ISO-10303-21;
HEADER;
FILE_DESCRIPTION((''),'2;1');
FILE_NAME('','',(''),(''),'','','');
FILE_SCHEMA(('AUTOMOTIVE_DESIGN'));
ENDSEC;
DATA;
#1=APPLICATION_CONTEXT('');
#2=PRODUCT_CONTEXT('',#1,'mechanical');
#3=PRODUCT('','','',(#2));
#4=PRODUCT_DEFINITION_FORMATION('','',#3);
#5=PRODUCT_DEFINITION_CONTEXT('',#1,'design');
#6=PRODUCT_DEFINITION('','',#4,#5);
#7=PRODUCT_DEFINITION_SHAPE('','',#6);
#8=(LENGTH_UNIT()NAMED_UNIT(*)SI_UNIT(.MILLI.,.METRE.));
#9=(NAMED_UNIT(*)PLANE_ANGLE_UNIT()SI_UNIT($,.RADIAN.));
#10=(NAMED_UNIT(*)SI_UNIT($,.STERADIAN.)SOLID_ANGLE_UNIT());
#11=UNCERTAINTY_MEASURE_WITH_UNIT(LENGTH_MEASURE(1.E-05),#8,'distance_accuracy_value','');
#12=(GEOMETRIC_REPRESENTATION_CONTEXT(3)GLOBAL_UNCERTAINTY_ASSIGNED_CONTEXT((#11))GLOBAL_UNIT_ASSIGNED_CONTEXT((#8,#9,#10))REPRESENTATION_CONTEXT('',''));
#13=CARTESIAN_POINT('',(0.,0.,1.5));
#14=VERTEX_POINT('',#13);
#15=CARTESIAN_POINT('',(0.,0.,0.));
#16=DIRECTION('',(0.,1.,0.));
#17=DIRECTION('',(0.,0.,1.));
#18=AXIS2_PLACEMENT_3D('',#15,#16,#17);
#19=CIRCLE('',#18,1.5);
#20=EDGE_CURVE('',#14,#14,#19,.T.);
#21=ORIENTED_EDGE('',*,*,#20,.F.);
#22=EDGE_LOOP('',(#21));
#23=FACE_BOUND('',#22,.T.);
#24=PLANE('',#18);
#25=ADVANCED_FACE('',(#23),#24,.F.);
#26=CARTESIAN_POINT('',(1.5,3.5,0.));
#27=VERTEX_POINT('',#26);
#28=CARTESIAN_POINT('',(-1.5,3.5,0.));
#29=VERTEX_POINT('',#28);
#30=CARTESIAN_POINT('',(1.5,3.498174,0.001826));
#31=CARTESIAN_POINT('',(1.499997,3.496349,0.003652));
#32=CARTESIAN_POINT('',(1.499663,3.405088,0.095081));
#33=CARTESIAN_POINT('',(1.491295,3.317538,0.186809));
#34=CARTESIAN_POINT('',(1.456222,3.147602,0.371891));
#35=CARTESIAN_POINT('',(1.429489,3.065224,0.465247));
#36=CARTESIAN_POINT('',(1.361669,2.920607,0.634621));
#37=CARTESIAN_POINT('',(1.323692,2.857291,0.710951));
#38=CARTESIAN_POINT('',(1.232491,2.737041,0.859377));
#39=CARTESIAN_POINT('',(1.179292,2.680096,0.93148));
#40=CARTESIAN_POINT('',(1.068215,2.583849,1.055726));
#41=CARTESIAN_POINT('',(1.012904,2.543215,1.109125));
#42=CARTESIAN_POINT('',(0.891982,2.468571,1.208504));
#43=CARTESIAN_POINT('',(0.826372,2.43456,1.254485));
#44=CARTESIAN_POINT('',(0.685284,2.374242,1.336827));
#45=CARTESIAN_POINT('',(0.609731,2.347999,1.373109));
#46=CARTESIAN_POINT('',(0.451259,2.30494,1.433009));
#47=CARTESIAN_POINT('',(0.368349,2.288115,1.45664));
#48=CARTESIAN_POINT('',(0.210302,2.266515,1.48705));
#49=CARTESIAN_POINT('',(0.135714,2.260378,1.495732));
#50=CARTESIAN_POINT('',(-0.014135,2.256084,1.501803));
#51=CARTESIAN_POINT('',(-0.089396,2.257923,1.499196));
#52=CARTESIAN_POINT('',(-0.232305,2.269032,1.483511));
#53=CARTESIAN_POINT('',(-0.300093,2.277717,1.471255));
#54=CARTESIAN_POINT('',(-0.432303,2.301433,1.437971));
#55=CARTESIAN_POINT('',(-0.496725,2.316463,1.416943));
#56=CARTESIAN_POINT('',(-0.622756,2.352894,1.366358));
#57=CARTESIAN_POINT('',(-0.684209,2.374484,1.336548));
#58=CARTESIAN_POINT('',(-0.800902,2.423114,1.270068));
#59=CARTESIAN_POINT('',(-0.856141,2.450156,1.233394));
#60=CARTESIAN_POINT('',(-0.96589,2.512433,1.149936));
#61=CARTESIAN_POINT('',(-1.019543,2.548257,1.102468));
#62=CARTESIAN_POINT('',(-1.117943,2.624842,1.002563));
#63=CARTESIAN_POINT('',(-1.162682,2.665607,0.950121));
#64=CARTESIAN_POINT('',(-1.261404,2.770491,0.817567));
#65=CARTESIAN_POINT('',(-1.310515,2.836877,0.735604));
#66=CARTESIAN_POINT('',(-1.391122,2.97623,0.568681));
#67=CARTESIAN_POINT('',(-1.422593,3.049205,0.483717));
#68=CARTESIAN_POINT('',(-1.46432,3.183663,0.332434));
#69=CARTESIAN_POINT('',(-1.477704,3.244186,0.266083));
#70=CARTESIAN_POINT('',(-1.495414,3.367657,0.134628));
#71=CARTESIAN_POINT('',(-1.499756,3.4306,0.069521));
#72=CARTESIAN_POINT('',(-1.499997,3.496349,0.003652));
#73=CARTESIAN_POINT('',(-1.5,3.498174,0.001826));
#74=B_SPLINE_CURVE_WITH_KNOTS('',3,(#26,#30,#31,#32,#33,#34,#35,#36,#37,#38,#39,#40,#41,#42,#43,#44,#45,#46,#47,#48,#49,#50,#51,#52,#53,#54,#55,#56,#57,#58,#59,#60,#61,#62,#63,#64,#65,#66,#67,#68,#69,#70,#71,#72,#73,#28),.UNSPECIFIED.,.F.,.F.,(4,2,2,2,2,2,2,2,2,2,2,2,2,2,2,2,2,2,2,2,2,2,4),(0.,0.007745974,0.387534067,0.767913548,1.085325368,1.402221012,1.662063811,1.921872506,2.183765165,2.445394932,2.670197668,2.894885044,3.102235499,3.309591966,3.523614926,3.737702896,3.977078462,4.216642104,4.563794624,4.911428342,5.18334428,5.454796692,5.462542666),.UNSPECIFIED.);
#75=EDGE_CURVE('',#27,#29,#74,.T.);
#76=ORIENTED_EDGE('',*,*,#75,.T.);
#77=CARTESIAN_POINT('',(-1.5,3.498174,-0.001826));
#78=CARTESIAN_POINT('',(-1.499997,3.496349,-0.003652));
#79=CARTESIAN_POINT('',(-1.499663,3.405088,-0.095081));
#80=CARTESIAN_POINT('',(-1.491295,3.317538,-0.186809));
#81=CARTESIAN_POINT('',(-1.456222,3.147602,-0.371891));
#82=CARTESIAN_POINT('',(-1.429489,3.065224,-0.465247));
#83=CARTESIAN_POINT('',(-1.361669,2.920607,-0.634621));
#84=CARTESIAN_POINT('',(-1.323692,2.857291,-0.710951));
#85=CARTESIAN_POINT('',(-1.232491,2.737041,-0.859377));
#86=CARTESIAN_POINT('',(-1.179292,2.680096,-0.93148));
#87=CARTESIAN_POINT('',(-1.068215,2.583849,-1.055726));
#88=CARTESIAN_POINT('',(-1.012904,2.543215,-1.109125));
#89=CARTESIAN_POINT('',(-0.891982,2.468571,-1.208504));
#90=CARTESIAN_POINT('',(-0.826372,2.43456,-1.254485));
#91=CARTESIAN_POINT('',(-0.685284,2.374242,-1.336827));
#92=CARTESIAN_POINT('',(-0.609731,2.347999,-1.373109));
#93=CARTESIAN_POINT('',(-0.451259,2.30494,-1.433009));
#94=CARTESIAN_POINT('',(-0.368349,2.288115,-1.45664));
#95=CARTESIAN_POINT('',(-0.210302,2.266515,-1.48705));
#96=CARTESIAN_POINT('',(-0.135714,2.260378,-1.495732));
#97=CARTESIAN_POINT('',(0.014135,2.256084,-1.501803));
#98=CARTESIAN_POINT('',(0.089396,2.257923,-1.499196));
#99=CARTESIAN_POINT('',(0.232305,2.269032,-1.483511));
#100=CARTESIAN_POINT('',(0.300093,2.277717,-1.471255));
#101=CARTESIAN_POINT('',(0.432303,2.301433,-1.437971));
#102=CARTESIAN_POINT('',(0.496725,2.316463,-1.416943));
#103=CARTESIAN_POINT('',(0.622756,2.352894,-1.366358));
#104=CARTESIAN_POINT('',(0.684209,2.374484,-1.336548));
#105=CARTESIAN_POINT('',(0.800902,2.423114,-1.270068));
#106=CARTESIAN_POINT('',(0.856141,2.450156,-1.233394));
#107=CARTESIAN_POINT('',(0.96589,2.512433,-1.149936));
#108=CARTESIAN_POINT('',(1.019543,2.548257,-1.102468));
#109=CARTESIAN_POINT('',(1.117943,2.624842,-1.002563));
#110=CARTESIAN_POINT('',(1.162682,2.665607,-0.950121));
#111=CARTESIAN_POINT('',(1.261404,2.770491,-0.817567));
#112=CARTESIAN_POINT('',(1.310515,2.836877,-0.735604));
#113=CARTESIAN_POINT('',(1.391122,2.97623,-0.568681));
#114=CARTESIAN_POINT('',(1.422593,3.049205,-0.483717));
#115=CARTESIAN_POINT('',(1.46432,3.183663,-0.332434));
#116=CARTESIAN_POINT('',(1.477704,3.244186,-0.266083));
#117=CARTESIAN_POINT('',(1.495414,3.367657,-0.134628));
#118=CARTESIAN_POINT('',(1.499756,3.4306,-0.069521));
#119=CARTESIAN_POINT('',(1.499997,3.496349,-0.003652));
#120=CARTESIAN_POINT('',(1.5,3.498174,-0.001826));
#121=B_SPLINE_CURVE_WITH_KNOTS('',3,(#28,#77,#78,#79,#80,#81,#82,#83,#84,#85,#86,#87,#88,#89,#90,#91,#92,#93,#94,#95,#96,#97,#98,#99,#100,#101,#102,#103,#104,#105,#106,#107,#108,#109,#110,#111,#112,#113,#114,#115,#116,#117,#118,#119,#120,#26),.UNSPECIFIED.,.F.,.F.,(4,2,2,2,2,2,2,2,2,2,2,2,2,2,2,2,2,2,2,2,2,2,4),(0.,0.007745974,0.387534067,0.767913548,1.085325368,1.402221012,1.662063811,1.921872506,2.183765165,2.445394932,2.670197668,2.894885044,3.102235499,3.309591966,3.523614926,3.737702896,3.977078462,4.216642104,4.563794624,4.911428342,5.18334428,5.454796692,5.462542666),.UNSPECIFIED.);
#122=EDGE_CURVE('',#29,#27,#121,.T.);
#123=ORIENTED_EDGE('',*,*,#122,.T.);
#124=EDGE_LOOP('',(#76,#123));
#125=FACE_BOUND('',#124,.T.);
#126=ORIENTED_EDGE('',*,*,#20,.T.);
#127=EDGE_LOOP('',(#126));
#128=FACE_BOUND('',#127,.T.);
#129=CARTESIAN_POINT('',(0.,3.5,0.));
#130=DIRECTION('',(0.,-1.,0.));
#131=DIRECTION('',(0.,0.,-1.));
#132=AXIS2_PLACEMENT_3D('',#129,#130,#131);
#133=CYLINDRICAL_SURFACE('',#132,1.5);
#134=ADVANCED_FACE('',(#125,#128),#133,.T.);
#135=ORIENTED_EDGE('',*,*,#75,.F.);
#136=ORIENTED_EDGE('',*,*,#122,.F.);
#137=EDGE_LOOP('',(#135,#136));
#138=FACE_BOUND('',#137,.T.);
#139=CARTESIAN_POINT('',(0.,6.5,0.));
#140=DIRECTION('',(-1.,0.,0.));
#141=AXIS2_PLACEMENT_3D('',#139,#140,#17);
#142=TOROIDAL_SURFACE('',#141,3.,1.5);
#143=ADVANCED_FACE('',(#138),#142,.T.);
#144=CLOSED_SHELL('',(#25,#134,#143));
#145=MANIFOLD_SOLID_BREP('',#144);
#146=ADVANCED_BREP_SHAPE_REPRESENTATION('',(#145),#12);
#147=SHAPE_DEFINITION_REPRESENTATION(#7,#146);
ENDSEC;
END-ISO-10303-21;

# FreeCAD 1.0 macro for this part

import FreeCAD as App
import Part
import Sketcher

doc = App.newDocument("Part")
body = doc.addObject("PartDesign::Body", "Body")

# Sketch on XZ plane
sketch1 = body.newObject("Sketcher::SketchObject", "Sketch")
sketch1.AttachmentSupport = (doc.getObject("XZ_Plane"), [""])
sketch1.MapMode = "FlatFace"
sketch1.addGeometry(Part.Circle(App.Vector(0, 0, 0), App.Vector(0, 0, 1), 1.5), False)
sketch1.addConstraint([
    Sketcher.Constraint("Coincident", 0, 3, -1, 1),
    Sketcher.Constraint("Diameter", 0, 3.0),
])
pad1 = body.newObject("PartDesign::Pad", "Pad")
pad1.Profile = sketch1
pad1.Length = 3.5
pad1.Reversed = True

# Sketch on XY plane
sketch2 = body.newObject("Sketcher::SketchObject", "Sketch001")
sketch2.AttachmentSupport = (doc.getObject("XY_Plane"), [""])
sketch2.MapMode = "FlatFace"
sketch2.addGeometry(Part.Circle(App.Vector(0, 3.5, 0), App.Vector(0, 0, 1), 1.5), False)
sketch2.addGeometry(Part.LineSegment(App.Vector(0, 6.5, 0), App.Vector(10, 6.5, 0)), True)  # axis
sketch2.addConstraint([
    Sketcher.Constraint("Horizontal", 1),
    Sketcher.Constraint("PointOnObject", 0, 3, -2),
    Sketcher.Constraint("PointOnObject", 1, 1, -2),
    Sketcher.Constraint("Diameter", 0, 3.0),
    Sketcher.Constraint("DistanceX", 1, 1, 1, 2, 10.0),
    Sketcher.Constraint("DistanceY", 0, 3, 1, 1, 3.0),
    Sketcher.Constraint("DistanceY", -1, 1, 0, 3, 3.5),
])
revolution = body.newObject("PartDesign::Revolution", "Revolution")
revolution.Profile = sketch2
revolution.ReferenceAxis = (sketch2, ["Axis0"])
revolution.Angle = 360

doc.recompute()
